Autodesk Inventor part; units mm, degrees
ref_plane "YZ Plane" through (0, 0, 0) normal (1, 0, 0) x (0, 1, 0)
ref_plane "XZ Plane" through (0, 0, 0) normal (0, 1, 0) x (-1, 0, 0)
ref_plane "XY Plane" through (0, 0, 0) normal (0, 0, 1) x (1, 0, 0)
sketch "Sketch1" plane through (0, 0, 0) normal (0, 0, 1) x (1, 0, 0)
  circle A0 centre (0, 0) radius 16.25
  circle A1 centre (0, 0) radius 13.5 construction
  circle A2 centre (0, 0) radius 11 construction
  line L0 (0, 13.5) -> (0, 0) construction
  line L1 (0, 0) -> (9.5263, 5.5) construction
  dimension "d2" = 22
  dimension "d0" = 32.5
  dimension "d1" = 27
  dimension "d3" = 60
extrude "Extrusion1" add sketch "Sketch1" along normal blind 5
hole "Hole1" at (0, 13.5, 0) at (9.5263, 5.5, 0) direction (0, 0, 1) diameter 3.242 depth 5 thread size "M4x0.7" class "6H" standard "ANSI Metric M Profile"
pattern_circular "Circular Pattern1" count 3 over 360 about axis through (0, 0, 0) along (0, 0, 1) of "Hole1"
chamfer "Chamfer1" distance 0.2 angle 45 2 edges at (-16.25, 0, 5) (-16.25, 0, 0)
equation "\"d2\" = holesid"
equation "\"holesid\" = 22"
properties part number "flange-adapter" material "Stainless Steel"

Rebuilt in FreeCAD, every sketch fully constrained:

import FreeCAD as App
import Part
import Sketcher

V = App.Vector


def edges_at(feature, points):
    """Names of the edges that pass closest to the given points."""
    edges = feature.Shape.Edges
    near = lambda p: min(range(len(edges)), key=lambda i: edges[i].distToShape(Part.Vertex(*p))[0])
    return sorted({f"Edge{near(p) + 1}" for p in points})

doc = App.newDocument("Part")
params = doc.addObject("Spreadsheet::Sheet", "Params")
for row, (alias, value) in enumerate([
    ("sketch1_diameter", "32.5 mm"),
    ("pad1_length", "5 mm"),
    ("hole_diameter", "3.242 mm"),
    ("hole_depth", "5 mm"),
    ("chamfer_size", "0.2 mm"),
], start=1):
    params.set(f"A{row}", alias)
    params.set(f"B{row}", "=" + value)
    params.setAlias(f"B{row}", alias)

body = doc.addObject("PartDesign::Body", "Body")

# Sketch on XY plane
sketch1 = body.newObject("Sketcher::SketchObject", "Sketch")
sketch1.AttachmentSupport = (doc.getObject("XY_Plane"), [""])
sketch1.MapMode = "FlatFace"
sketch1.addGeometry(Part.Circle(V(0, 0, 0), V(0, 0, 1), 16), False)
sketch1.addConstraint(Sketcher.Constraint("Coincident", 0, 3, -1, 1))
sketch1.addConstraint(Sketcher.Constraint("Diameter", 0, 32.5))
sketch1.setExpression("Constraints[1]", "Params.sketch1_diameter")
pad1 = body.newObject("PartDesign::Pad", "Pad")
pad1.Profile = sketch1
pad1.setExpression("Length", "Params.pad1_length")

# Sketch on XY plane
sketch2 = body.newObject("Sketcher::SketchObject", "Sketch001")
sketch2.AttachmentSupport = (doc.getObject("XY_Plane"), [""])
sketch2.MapMode = "FlatFace"
sketch2.addGeometry(Part.Circle(V(0, 13.5, 0), V(0, 0, 1), 1.6), False)
sketch2.addGeometry(Part.Circle(V(9.5, 5.5, 0), V(0, 0, 1), 1.6), False)
sketch2.addConstraint(Sketcher.Constraint("Equal", 0, 1))
sketch2.addConstraint(Sketcher.Constraint("PointOnObject", 0, 3, -2))
sketch2.addConstraint(Sketcher.Constraint("Diameter", 0, 3.242))
sketch2.addConstraint(Sketcher.Constraint("DistanceY", 1, 3, 0, 3, 8.0))
sketch2.addConstraint(Sketcher.Constraint("DistanceY", -1, 1, 0, 3, 13.5))
sketch2.addConstraint(Sketcher.Constraint("DistanceX", -1, 1, 1, 3, 9.5263))
doc.recompute()
hole = body.newObject("PartDesign::Hole", "Hole")
hole.Profile = sketch2
hole.ThreadType = "None"
hole.setExpression("Diameter", "Params.hole_diameter")
hole.DepthType = "Dimension"
hole.setExpression("Depth", "Params.hole_depth")
hole.DrillPoint = "Flat"
hole.Reversed = True
doc.recompute()

polarpattern = body.newObject("PartDesign::PolarPattern", "PolarPattern")
polarpattern.Originals = [hole]
polarpattern.Axis = (doc.getObject("Z_Axis"), [""])
polarpattern.Angle = 360
polarpattern.Occurrences = 3
body.Tip = polarpattern
doc.recompute()

chamfer = body.newObject("PartDesign::Chamfer", "Chamfer")
chamfer.Base = (polarpattern, edges_at(polarpattern, [(-16.25, 0, 5), (-16.25, 0, 0)]))
chamfer.setExpression("Size", "Params.chamfer_size")

doc.recompute()
